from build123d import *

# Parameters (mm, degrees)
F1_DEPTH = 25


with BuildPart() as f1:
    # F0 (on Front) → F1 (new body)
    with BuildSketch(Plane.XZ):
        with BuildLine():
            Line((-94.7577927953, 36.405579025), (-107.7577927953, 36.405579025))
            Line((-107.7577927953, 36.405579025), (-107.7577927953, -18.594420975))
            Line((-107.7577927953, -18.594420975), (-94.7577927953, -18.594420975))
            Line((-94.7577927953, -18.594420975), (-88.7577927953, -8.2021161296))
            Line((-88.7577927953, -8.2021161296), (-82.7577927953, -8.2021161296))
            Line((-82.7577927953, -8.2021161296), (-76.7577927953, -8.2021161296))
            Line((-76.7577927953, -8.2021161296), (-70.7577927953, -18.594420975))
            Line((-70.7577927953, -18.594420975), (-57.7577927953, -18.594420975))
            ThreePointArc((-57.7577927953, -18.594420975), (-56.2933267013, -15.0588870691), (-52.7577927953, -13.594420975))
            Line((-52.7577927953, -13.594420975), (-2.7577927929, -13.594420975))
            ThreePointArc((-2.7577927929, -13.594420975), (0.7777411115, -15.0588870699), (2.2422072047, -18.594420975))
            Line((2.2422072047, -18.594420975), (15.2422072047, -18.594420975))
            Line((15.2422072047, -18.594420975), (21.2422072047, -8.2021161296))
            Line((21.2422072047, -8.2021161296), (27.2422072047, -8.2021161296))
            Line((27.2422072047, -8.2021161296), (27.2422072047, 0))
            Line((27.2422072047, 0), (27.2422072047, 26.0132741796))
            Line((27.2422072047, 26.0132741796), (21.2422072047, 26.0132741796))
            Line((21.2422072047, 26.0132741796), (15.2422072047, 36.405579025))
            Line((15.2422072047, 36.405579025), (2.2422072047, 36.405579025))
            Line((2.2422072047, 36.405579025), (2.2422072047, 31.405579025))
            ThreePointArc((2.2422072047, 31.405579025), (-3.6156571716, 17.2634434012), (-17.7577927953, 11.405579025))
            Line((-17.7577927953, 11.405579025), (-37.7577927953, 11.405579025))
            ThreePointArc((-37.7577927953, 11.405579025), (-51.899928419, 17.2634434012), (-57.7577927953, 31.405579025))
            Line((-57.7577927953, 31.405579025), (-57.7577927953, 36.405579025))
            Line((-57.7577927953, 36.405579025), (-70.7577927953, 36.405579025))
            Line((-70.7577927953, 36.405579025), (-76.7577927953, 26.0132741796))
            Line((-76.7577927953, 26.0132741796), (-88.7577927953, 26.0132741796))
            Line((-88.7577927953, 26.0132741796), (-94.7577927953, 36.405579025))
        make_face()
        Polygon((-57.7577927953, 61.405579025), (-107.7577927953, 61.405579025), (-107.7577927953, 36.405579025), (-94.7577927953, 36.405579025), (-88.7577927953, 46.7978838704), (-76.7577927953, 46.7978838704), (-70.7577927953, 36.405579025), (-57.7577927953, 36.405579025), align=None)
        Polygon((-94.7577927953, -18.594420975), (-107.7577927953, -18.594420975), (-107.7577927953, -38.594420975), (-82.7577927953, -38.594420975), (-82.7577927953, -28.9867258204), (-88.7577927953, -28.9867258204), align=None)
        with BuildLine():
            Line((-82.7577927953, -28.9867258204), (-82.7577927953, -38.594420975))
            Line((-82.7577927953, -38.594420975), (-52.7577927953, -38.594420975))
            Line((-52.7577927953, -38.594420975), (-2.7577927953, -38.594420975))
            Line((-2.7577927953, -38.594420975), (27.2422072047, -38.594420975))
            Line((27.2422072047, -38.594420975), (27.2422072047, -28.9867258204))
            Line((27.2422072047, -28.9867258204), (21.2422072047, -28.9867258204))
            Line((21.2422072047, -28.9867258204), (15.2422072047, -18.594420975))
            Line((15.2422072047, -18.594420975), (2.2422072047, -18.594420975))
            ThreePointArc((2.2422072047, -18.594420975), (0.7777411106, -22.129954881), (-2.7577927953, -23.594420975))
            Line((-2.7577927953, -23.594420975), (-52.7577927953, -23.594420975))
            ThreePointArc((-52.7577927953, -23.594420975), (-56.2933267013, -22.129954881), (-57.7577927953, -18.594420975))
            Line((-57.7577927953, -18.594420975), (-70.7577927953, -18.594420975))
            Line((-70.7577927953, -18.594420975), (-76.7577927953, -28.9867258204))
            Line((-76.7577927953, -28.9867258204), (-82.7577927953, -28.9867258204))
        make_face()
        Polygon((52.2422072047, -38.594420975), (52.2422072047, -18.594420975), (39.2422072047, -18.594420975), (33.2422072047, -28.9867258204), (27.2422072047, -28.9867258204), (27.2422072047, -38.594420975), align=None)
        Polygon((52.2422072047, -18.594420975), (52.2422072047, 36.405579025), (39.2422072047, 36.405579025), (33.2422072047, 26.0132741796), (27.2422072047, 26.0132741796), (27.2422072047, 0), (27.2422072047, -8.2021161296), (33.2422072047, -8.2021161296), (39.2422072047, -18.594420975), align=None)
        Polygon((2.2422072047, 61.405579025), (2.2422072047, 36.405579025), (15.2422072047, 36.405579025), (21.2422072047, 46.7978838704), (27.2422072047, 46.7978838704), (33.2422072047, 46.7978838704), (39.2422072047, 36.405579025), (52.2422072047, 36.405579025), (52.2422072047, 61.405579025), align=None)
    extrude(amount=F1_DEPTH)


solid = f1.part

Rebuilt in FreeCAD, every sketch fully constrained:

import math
import FreeCAD as App
import Part
import Sketcher

V = App.Vector
Q = App.Units.Quantity

doc = App.newDocument("Part")
body = doc.addObject("PartDesign::Body", "Body")

sketch1 = body.newObject("Sketcher::SketchObject", "Sketch")
sketch1.AttachmentSupport = (doc.getObject("XZ_Plane"), [""])
sketch1.MapMode = "FlatFace"
sketch1.addGeometry([
    Part.ArcOfCircle(Part.Circle(V(-17.757793, 31.405579, 0), V(0, 0, 1), 20), math.radians(-90), math.radians(0)),
    Part.LineSegment(V(-17.757793, 11.405579, 0), V(-37.757793, 11.405579, 0)),
    Part.ArcOfCircle(Part.Circle(V(-37.757793, 31.405579, 0), V(0, 0, 1), 20), math.radians(180), math.radians(270)),
    Part.LineSegment(V(-57.757793, 31.405579, 0), V(-57.757793, 61.405579, 0)),
    Part.LineSegment(V(-57.757793, 61.405579, 0), V(-107.757793, 61.405579, 0)),
    Part.LineSegment(V(-107.757793, 61.405579, 0), V(-107.757793, -38.594421, 0)),
    Part.LineSegment(V(-107.757793, -38.594421, 0), V(52.242207, -38.594421, 0)),
    Part.LineSegment(V(52.242207, -38.594421, 0), V(52.242207, 61.405579, 0)),
    Part.LineSegment(V(52.242207, 61.405579, 0), V(2.242207, 61.405579, 0)),
    Part.LineSegment(V(2.242207, 61.405579, 0), V(2.242207, 31.405579, 0)),
    Part.LineSegment(V(-94.757793, -18.594421, 0), V(-88.757793, -8.202116, 0)),
    Part.LineSegment(V(-88.757793, -8.202116, 0), V(-76.757793, -8.202116, 0)),
    Part.LineSegment(V(-76.757793, -8.202116, 0), V(-70.757793, -18.594421, 0)),
    Part.LineSegment(V(-70.757793, -18.594421, 0), V(-76.757793, -28.986726, 0)),
    Part.LineSegment(V(-76.757793, -28.986726, 0), V(-88.757793, -28.986726, 0)),
    Part.LineSegment(V(-88.757793, -28.986726, 0), V(-94.757793, -18.594421, 0)),
    Part.ArcOfCircle(Part.Circle(V(-52.757793, -18.594421, 0), V(0, 0, 1), 5), math.radians(90), math.radians(180)),
    Part.LineSegment(V(-52.757793, -13.594421, 0), V(-2.757793, -13.594421, 0)),
    Part.ArcOfCircle(Part.Circle(V(-2.757793, -18.594421, 0), V(0, 0, 1), 5), math.radians(0), math.radians(90)),
    Part.ArcOfCircle(Part.Circle(V(-2.757793, -18.594421, 0), V(0, 0, 1), 5), math.radians(-90), math.radians(0)),
    Part.LineSegment(V(-2.757793, -23.594421, 0), V(-52.757793, -23.594421, 0)),
    Part.ArcOfCircle(Part.Circle(V(-52.757793, -18.594421, 0), V(0, 0, 1), 5), math.radians(180), math.radians(270)),
    Part.LineSegment(V(15.242207, -18.594421, 0), V(21.242207, -8.202116, 0)),
    Part.LineSegment(V(21.242207, -8.202116, 0), V(33.242207, -8.202116, 0)),
    Part.LineSegment(V(33.242207, -8.202116, 0), V(39.242207, -18.594421, 0)),
    Part.LineSegment(V(39.242207, -18.594421, 0), V(33.242207, -28.986726, 0)),
    Part.LineSegment(V(33.242207, -28.986726, 0), V(21.242207, -28.986726, 0)),
    Part.LineSegment(V(21.242207, -28.986726, 0), V(15.242207, -18.594421, 0)),
    Part.LineSegment(V(21.242207, 26.013274, 0), V(15.242207, 36.405579, 0)),
    Part.LineSegment(V(15.242207, 36.405579, 0), V(21.242207, 46.797884, 0)),
    Part.LineSegment(V(21.242207, 46.797884, 0), V(33.242207, 46.797884, 0)),
    Part.LineSegment(V(33.242207, 46.797884, 0), V(39.242207, 36.405579, 0)),
    Part.LineSegment(V(39.242207, 36.405579, 0), V(33.242207, 26.013274, 0)),
    Part.LineSegment(V(33.242207, 26.013274, 0), V(21.242207, 26.013274, 0)),
    Part.LineSegment(V(-70.757793, 36.405579, 0), V(-76.757793, 26.013274, 0)),
    Part.LineSegment(V(-76.757793, 26.013274, 0), V(-88.757793, 26.013274, 0)),
    Part.LineSegment(V(-88.757793, 26.013274, 0), V(-94.757793, 36.405579, 0)),
    Part.LineSegment(V(-94.757793, 36.405579, 0), V(-88.757793, 46.797884, 0)),
    Part.LineSegment(V(-88.757793, 46.797884, 0), V(-76.757793, 46.797884, 0)),
    Part.LineSegment(V(-76.757793, 46.797884, 0), V(-70.757793, 36.405579, 0)),
], False)
sketch1.addConstraint([
    Sketcher.Constraint("Tangent", 0, 1, 1, 1),
    Sketcher.Constraint("Tangent", 1, 2, 2, 2),
    Sketcher.Constraint("Tangent", 2, 1, 3, 1),
    Sketcher.Constraint("Coincident", 3, 2, 4, 1),
    Sketcher.Constraint("Coincident", 4, 2, 5, 1),
    Sketcher.Constraint("Coincident", 5, 2, 6, 1),
    Sketcher.Constraint("Coincident", 6, 2, 7, 1),
    Sketcher.Constraint("Coincident", 7, 2, 8, 1),
    Sketcher.Constraint("Coincident", 8, 2, 9, 1),
    Sketcher.Constraint("Tangent", 9, 2, 0, 2),
    Sketcher.Constraint("Coincident", 10, 2, 11, 1),
    Sketcher.Constraint("Coincident", 11, 2, 12, 1),
    Sketcher.Constraint("Coincident", 12, 2, 13, 1),
    Sketcher.Constraint("Coincident", 13, 2, 14, 1),
    Sketcher.Constraint("Coincident", 14, 2, 15, 1),
    Sketcher.Constraint("Coincident", 15, 2, 10, 1),
    Sketcher.Constraint("Tangent", 16, 1, 17, 1),
    Sketcher.Constraint("Tangent", 17, 2, 18, 2),
    Sketcher.Constraint("Tangent", 18, 1, 19, 2),
    Sketcher.Constraint("Tangent", 19, 1, 20, 1),
    Sketcher.Constraint("Tangent", 20, 2, 21, 2),
    Sketcher.Constraint("Tangent", 21, 1, 16, 2),
    Sketcher.Constraint("Coincident", 22, 2, 23, 1),
    Sketcher.Constraint("Coincident", 23, 2, 24, 1),
    Sketcher.Constraint("Coincident", 24, 2, 25, 1),
    Sketcher.Constraint("Coincident", 25, 2, 26, 1),
    Sketcher.Constraint("Coincident", 26, 2, 27, 1),
    Sketcher.Constraint("Coincident", 27, 2, 22, 1),
    Sketcher.Constraint("Coincident", 28, 2, 29, 1),
    Sketcher.Constraint("Coincident", 29, 2, 30, 1),
    Sketcher.Constraint("Coincident", 30, 2, 31, 1),
    Sketcher.Constraint("Coincident", 31, 2, 32, 1),
    Sketcher.Constraint("Coincident", 32, 2, 33, 1),
    Sketcher.Constraint("Coincident", 33, 2, 28, 1),
    Sketcher.Constraint("Coincident", 34, 2, 35, 1),
    Sketcher.Constraint("Coincident", 35, 2, 36, 1),
    Sketcher.Constraint("Coincident", 36, 2, 37, 1),
    Sketcher.Constraint("Coincident", 37, 2, 38, 1),
    Sketcher.Constraint("Coincident", 38, 2, 39, 1),
    Sketcher.Constraint("Coincident", 39, 2, 34, 1),
    Sketcher.Constraint("Horizontal", 1),
    Sketcher.Constraint("Vertical", 3),
    Sketcher.Constraint("Horizontal", 4),
    Sketcher.Constraint("Vertical", 5),
    Sketcher.Constraint("Horizontal", 6),
    Sketcher.Constraint("Vertical", 7),
    Sketcher.Constraint("Horizontal", 8),
    Sketcher.Constraint("Vertical", 9),
    Sketcher.Constraint("Horizontal", 11),
    Sketcher.Constraint("Horizontal", 14),
    Sketcher.Constraint("Horizontal", 17),
    Sketcher.Constraint("Horizontal", 20),
    Sketcher.Constraint("Horizontal", 23),
    Sketcher.Constraint("Horizontal", 26),
    Sketcher.Constraint("Horizontal", 30),
    Sketcher.Constraint("Horizontal", 33),
    Sketcher.Constraint("Horizontal", 35),
    Sketcher.Constraint("Horizontal", 38),
    Sketcher.Constraint("Equal", 0, 2),
    Sketcher.Constraint("Equal", 16, 18),
    Sketcher.Constraint("Equal", 18, 19),
    Sketcher.Constraint("Parallel", 10, 13),
    Sketcher.Constraint("Parallel", 12, 15),
    Sketcher.Constraint("Parallel", 13, 22),
    Sketcher.Constraint("Parallel", 15, 24),
    Sketcher.Constraint("Parallel", 22, 25),
    Sketcher.Constraint("Parallel", 24, 27),
    Sketcher.Constraint("Parallel", 27, 28),
    Sketcher.Constraint("Parallel", 25, 29),
    Sketcher.Constraint("Parallel", 28, 31),
    Sketcher.Constraint("Parallel", 29, 32),
    Sketcher.Constraint("Parallel", 32, 34),
    Sketcher.Constraint("Parallel", 31, 36),
    Sketcher.Constraint("Parallel", 34, 37),
    Sketcher.Constraint("Parallel", 36, 39),
    Sketcher.Constraint("Horizontal", 4, 2, 7, 2),
    Sketcher.Constraint("Horizontal", 21, 3, 12, 2),
    Sketcher.Constraint("Horizontal", 12, 2, 15, 2),
    Sketcher.Constraint("Horizontal", 15, 2, 18, 1),
    Sketcher.Constraint("Horizontal", 18, 1, 21, 1),
    Sketcher.Constraint("Horizontal", 11, 2, 22, 2),
    Sketcher.Constraint("Horizontal", 21, 1, 24, 2),
    Sketcher.Constraint("Horizontal", 14, 2, 25, 2),
    Sketcher.Constraint("Horizontal", 24, 2, 27, 2),
    Sketcher.Constraint("Horizontal", 28, 2, 31, 2),
    Sketcher.Constraint("Horizontal", 33, 2, 34, 2),
    Sketcher.Constraint("Horizontal", 31, 2, 36, 2),
    Sketcher.Constraint("Horizontal", 30, 2, 37, 2),
    Sketcher.Constraint("Horizontal", 36, 2, 39, 2),
    Sketcher.Constraint("Vertical", 11, 2, 13, 2),
    Sketcher.Constraint("Vertical", 10, 2, 14, 2),
    Sketcher.Constraint("Vertical", 9, 2, 18, 1),
    Sketcher.Constraint("Vertical", 3, 2, 21, 1),
    Sketcher.Constraint("Vertical", 27, 2, 28, 2),
    Sketcher.Constraint("Vertical", 26, 2, 29, 2),
    Sketcher.Constraint("Vertical", 25, 2, 30, 2),
    Sketcher.Constraint("Vertical", 30, 2, 32, 2),
    Sketcher.Constraint("Vertical", 13, 2, 34, 2),
    Sketcher.Constraint("Vertical", 14, 2, 35, 2),
    Sketcher.Constraint("Equal", 4, 8),
    Sketcher.Constraint("Equal", 8, 17),
    Sketcher.Constraint("Equal", 14, 23),
    Sketcher.Constraint("Radius", 0, Q("20 mm")),
    Sketcher.Constraint("Radius", 16, Q("5 mm")),
    Sketcher.Constraint("DistanceX", 1, 2, 1, 1, Q("20 mm")),
    Sketcher.Constraint("DistanceX", 11, 1, 11, 2, Q("12 mm")),
    Sketcher.Constraint("DistanceY", 3, 1, 3, 2, Q("30 mm")),
    Sketcher.Constraint("DistanceY", 5, 2, 5, 1, Q("100 mm")),
    Sketcher.Constraint("Angle", 10, Q("60 deg")),
    Sketcher.Constraint("Distance", 10, Q("12 mm")),
    Sketcher.Constraint("DistanceY", 16, 3, 2, 3, Q("50 mm")),
    Sketcher.Constraint("DistanceX", 5, 2, 10, 2, Q("19 mm")),
    Sketcher.Constraint("DistanceX", 18, 1, 22, 2, Q("19 mm")),
    Sketcher.Constraint("DistanceY", 9, 2, 28, 2, Q("5 mm")),
    Sketcher.Constraint("DistanceY", -1, 1, 0, 3, Q("31.405579 mm")),
    Sketcher.Constraint("DistanceX", 0, 3, -1, 1, Q("17.757793 mm")),
])
pad1 = body.newObject("PartDesign::Pad", "Pad")
pad1.Profile = sketch1
pad1.Length = 25

doc.recompute()
